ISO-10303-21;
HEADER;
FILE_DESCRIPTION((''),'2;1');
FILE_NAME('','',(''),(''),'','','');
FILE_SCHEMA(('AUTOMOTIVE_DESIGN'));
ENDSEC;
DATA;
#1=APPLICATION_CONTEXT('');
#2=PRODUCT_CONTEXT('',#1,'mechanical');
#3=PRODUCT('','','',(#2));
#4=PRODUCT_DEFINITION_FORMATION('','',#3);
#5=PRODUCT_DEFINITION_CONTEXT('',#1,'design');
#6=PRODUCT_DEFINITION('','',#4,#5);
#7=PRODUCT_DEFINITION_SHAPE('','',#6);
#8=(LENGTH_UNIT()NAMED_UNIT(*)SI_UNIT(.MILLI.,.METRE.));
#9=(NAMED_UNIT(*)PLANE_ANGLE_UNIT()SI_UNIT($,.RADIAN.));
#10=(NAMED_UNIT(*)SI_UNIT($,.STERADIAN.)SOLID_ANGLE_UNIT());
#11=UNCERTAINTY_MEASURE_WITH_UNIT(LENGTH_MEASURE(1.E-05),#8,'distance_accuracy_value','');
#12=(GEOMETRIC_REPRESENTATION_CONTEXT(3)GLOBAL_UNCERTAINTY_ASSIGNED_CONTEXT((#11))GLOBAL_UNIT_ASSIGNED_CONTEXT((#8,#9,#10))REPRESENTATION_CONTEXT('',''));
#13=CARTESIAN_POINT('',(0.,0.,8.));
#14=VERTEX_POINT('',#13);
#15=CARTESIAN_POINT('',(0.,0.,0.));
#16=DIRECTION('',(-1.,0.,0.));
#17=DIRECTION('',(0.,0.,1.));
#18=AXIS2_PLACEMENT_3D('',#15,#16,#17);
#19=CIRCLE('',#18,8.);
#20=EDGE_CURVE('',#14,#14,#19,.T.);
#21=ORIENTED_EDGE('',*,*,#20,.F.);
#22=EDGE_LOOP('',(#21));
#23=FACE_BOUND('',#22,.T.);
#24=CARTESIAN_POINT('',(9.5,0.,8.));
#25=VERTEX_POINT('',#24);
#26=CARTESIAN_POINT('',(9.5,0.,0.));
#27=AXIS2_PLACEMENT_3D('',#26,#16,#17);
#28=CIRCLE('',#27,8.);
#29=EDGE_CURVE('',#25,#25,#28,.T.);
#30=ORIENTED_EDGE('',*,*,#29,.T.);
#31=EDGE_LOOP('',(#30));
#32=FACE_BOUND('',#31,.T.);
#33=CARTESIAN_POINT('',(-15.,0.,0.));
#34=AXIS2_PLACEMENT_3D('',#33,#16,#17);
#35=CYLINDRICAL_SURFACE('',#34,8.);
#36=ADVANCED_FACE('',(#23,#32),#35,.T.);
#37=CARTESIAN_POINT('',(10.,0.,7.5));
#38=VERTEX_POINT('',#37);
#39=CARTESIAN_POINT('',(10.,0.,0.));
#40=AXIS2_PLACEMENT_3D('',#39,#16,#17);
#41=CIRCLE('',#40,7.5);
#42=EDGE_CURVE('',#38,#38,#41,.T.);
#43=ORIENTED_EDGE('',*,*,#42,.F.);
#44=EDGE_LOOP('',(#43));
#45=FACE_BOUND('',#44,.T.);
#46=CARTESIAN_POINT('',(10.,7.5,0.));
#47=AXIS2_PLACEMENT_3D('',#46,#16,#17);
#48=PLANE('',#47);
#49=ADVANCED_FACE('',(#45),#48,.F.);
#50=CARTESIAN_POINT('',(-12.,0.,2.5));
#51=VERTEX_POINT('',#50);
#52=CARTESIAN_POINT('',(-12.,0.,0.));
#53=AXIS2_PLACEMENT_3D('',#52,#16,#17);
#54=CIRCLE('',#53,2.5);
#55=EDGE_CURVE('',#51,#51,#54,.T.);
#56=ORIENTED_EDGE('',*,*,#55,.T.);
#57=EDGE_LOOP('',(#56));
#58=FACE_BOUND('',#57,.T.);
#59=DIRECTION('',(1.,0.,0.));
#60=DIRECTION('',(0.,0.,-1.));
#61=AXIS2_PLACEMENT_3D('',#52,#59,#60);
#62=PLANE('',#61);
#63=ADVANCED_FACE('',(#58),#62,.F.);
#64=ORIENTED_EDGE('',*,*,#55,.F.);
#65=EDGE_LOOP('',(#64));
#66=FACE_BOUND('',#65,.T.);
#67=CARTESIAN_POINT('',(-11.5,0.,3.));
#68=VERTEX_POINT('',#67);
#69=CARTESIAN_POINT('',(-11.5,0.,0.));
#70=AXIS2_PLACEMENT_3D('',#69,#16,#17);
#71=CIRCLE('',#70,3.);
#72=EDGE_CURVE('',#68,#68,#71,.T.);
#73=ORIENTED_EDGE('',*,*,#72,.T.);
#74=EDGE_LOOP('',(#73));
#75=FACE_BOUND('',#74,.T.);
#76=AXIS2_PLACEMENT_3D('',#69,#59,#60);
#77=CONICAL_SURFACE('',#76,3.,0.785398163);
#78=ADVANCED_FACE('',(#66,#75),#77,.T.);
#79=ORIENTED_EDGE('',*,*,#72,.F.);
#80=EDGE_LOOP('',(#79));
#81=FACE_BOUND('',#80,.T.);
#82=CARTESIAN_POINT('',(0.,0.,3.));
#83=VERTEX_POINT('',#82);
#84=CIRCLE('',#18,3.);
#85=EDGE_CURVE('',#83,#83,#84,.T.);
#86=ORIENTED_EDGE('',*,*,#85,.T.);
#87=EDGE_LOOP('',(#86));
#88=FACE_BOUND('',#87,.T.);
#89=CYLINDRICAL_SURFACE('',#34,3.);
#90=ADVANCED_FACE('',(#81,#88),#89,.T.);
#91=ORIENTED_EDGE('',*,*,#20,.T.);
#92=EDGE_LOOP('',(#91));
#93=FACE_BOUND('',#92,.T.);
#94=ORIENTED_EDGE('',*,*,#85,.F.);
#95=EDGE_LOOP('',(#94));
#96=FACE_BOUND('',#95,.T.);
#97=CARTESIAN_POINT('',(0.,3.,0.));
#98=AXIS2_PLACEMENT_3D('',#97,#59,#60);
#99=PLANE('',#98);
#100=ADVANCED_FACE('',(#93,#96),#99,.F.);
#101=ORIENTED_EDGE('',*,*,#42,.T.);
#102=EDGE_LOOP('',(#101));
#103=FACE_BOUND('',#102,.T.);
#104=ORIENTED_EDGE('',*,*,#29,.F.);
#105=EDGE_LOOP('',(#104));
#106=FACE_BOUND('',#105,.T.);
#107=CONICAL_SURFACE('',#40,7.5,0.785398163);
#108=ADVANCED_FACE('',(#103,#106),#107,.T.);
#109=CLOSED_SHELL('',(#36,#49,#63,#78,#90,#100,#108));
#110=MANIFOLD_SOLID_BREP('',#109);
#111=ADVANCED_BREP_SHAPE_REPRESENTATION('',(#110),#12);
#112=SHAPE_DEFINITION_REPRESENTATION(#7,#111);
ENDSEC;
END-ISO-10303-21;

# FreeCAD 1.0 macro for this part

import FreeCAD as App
import Part
import Sketcher
Q = App.Units.Quantity


def add_polygon(sketch, points):
    """Adds a closed chain of lines whose ends are joined by coincident constraints."""
    first, n = sketch.GeometryCount, len(points)
    for a, b in zip(points, points[1:] + points[:1]):
        sketch.addGeometry(Part.LineSegment(App.Vector(*a, 0), App.Vector(*b, 0)), False)
    for i in range(n):
        sketch.addConstraint(Sketcher.Constraint("Coincident", first + i, 2, first + (i + 1) % n, 1))

doc = App.newDocument("Part")
params = doc.addObject("Spreadsheet::Sheet", "Params")
for row, (alias, value) in enumerate([
    ("sketch1_width", "22 mm"),
    ("sketch1_height", "5 mm"),
    ("sketch1_width2", "9.5 mm"),
    ("sketch1_width3", "11.5 mm"),
    ("sketch1_height2", "2.5 mm"),
    ("revolution_angle", "360 deg"),
], start=1):
    params.set(f"A{row}", alias)
    params.set(f"B{row}", "=" + value)
    params.setAlias(f"B{row}", alias)

body = doc.addObject("PartDesign::Body", "Body")

# Sketch on XY plane
sketch1 = body.newObject("Sketcher::SketchObject", "Sketch")
sketch1.AttachmentSupport = (doc.getObject("XY_Plane"), [""])
sketch1.MapMode = "FlatFace"
add_polygon(sketch1, [(-12, 2.5), (-12, 0), (10, 0), (10, 7.5), (9.5, 8), (0, 8), (0, 3), (-11.5, 3)])  # lines 0-7
sketch1.addConstraint([
    Sketcher.Constraint("Vertical", 0),
    Sketcher.Constraint("Horizontal", 1),
    Sketcher.Constraint("Vertical", 2),
    Sketcher.Constraint("Horizontal", 4),
    Sketcher.Constraint("Vertical", 5),
    Sketcher.Constraint("Horizontal", 6),
    Sketcher.Constraint("PointOnObject", 0, 2, -1),
    Sketcher.Constraint("PointOnObject", 4, 2, -2),
    Sketcher.Constraint("Perpendicular", 3, 7),
    Sketcher.Constraint("Equal", 3, 7),
    Sketcher.Constraint("DistanceX", 1, 1, 1, 2, 22.0),
    Sketcher.Constraint("DistanceY", 5, 2, 5, 1, 5.0),
    Sketcher.Constraint("Angle", 3, Q("135 deg")),
    Sketcher.Constraint("DistanceX", 4, 2, 4, 1, 9.5),
    Sketcher.Constraint("DistanceX", 6, 2, 6, 1, 11.5),
    Sketcher.Constraint("DistanceY", 0, 2, 0, 1, 2.5),
])
sketch1.setExpression("Constraints[18]", "Params.sketch1_width")
sketch1.setExpression("Constraints[19]", "Params.sketch1_height")
sketch1.setExpression("Constraints[21]", "Params.sketch1_width2")
sketch1.setExpression("Constraints[22]", "Params.sketch1_width3")
sketch1.setExpression("Constraints[23]", "Params.sketch1_height2")
revolution = body.newObject("PartDesign::Revolution", "Revolution")
revolution.Profile = sketch1
revolution.ReferenceAxis = (sketch1, ["H_Axis"])
revolution.setExpression("Angle", "Params.revolution_angle")

doc.recompute()
